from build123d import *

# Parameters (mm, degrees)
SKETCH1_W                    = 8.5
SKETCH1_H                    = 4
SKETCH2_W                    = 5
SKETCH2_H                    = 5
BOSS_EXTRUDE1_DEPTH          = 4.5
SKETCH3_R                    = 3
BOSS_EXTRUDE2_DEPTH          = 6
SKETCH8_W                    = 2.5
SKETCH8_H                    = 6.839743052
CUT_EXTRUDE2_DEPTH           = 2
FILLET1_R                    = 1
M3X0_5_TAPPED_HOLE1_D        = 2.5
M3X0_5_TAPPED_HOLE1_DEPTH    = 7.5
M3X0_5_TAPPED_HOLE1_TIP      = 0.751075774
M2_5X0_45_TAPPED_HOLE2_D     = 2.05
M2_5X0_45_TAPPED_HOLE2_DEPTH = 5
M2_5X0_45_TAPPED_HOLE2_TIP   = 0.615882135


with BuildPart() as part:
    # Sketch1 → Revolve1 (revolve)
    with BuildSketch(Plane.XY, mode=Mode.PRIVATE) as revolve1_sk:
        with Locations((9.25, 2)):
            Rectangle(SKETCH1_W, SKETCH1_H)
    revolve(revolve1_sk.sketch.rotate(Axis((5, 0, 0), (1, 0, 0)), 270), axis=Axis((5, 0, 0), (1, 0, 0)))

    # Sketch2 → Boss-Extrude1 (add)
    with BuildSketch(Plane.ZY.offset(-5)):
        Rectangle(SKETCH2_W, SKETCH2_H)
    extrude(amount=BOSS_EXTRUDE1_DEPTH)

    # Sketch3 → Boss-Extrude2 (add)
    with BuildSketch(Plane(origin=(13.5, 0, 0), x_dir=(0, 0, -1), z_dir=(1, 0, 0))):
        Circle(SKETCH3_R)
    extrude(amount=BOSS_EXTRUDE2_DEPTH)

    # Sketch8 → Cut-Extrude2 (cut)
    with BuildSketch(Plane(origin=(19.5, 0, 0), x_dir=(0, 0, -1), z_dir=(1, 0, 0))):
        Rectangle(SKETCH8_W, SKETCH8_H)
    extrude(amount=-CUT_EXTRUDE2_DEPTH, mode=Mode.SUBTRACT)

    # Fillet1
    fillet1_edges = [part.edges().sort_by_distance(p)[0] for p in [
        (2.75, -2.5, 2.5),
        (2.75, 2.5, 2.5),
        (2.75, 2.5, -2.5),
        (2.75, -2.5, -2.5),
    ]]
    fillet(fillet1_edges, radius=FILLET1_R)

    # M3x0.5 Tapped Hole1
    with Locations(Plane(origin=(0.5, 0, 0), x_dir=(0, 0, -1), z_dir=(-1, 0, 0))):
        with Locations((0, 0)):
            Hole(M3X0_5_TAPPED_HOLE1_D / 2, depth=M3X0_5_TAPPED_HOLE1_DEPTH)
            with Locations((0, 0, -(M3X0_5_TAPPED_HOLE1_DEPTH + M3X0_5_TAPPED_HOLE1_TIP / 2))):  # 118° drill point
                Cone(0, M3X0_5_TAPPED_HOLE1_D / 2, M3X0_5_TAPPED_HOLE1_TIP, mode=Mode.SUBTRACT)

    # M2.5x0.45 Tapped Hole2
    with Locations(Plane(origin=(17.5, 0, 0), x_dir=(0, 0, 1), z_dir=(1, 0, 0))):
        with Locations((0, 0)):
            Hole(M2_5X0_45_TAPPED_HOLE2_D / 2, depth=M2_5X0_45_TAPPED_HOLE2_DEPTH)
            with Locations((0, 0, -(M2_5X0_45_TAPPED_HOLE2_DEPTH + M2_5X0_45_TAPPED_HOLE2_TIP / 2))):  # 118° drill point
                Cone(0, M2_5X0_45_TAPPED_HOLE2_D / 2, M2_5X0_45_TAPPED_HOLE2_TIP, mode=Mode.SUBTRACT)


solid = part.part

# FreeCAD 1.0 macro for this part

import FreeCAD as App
import Part
import Sketcher


def edges_at(feature, points):
    """Names of the edges that pass closest to the given points."""
    edges = feature.Shape.Edges
    near = lambda p: min(range(len(edges)), key=lambda i: edges[i].distToShape(Part.Vertex(*p))[0])
    return sorted({f"Edge{near(p) + 1}" for p in points})


def add_polygon(sketch, points):
    """Adds a closed chain of lines whose ends are joined by coincident constraints."""
    first, n = sketch.GeometryCount, len(points)
    for a, b in zip(points, points[1:] + points[:1]):
        sketch.addGeometry(Part.LineSegment(App.Vector(*a, 0), App.Vector(*b, 0)), False)
    for i in range(n):
        sketch.addConstraint(Sketcher.Constraint("Coincident", first + i, 2, first + (i + 1) % n, 1))

doc = App.newDocument("Part")
body = doc.addObject("PartDesign::Body", "Body")

# Sketch on XY plane
sketch1 = body.newObject("Sketcher::SketchObject", "Sketch")
sketch1.AttachmentSupport = (doc.getObject("XY_Plane"), [""])
sketch1.MapMode = "FlatFace"
add_polygon(sketch1, [(5, 4), (5, 0), (13.5, 0), (13.5, 4)])  # lines 0-3
sketch1.addConstraint(Sketcher.Constraint("Vertical", 0))
sketch1.addConstraint(Sketcher.Constraint("Horizontal", 1))
sketch1.addConstraint(Sketcher.Constraint("Vertical", 2))
sketch1.addConstraint(Sketcher.Constraint("Horizontal", 3))
sketch1.addConstraint(Sketcher.Constraint("PointOnObject", 0, 2, -1))
sketch1.addConstraint(Sketcher.Constraint("DistanceY", 0, 2, 0, 1, 4.0))
sketch1.addConstraint(Sketcher.Constraint("DistanceX", 1, 1, 1, 2, 8.5))
sketch1.addConstraint(Sketcher.Constraint("DistanceX", -1, 1, 0, 2, 5.0))
revolution = body.newObject("PartDesign::Revolution", "Revolution")
revolution.Profile = sketch1
revolution.ReferenceAxis = (sketch1, ["H_Axis"])
revolution.Angle = 360

# Sketch on YZ plane
sketch2 = body.newObject("Sketcher::SketchObject", "Sketch001")
sketch2.AttachmentSupport = (doc.getObject("YZ_Plane"), [""])
sketch2.MapMode = "FlatFace"
sketch2.AttachmentOffset = App.Placement(App.Vector(0, 0, 5), App.Rotation())
add_polygon(sketch2, [(2, -2), (-2, -2), (-2, 2), (2, 2)])  # lines 0-3
sketch2.addConstraint(Sketcher.Constraint("Horizontal", 0))
sketch2.addConstraint(Sketcher.Constraint("Vertical", 1))
sketch2.addConstraint(Sketcher.Constraint("Horizontal", 2))
sketch2.addConstraint(Sketcher.Constraint("Vertical", 3))
sketch2.addConstraint(Sketcher.Constraint("Symmetric", 0, 2, 2, 2, -1, 1))
sketch2.addConstraint(Sketcher.Constraint("Equal", 2, 1))
sketch2.addConstraint(Sketcher.Constraint("DistanceX", 0, 2, 0, 1, 5.0))
pad1 = body.newObject("PartDesign::Pad", "Pad")
pad1.Profile = sketch2
pad1.Length = 4.5
pad1.Reversed = True

# Sketch on YZ plane
sketch3 = body.newObject("Sketcher::SketchObject", "Sketch002")
sketch3.AttachmentSupport = (doc.getObject("YZ_Plane"), [""])
sketch3.MapMode = "FlatFace"
sketch3.AttachmentOffset = App.Placement(App.Vector(0, 0, 13.5), App.Rotation())
sketch3.addGeometry(Part.Circle(App.Vector(0, 0, 0), App.Vector(0, 0, 1), 3), False)
sketch3.addConstraint(Sketcher.Constraint("Coincident", 0, 3, -1, 1))
sketch3.addConstraint(Sketcher.Constraint("Diameter", 0, 6.0))
pad2 = body.newObject("PartDesign::Pad", "Pad001")
pad2.Profile = sketch3
pad2.Length = 6

# Sketch on YZ plane
sketch4 = body.newObject("Sketcher::SketchObject", "Sketch003")
sketch4.AttachmentSupport = (doc.getObject("YZ_Plane"), [""])
sketch4.MapMode = "FlatFace"
sketch4.AttachmentOffset = App.Placement(App.Vector(0, 0, 19.5), App.Rotation())
add_polygon(sketch4, [(3.4, 1.2), (-3.4, 1.2), (-3.4, -1.2), (3.4, -1.2)])  # lines 0-3
sketch4.addConstraint(Sketcher.Constraint("Horizontal", 0))
sketch4.addConstraint(Sketcher.Constraint("Vertical", 1))
sketch4.addConstraint(Sketcher.Constraint("Horizontal", 2))
sketch4.addConstraint(Sketcher.Constraint("Vertical", 3))
sketch4.addConstraint(Sketcher.Constraint("Symmetric", 0, 2, 2, 2, -1, 1))
sketch4.addConstraint(Sketcher.Constraint("DistanceY", 1, 2, 1, 1, 2.5))
sketch4.addConstraint(Sketcher.Constraint("DistanceX", 0, 2, 0, 1, 6.839743))
pocket1 = body.newObject("PartDesign::Pocket", "Pocket")
pocket1.Profile = sketch4
pocket1.Length = 2
doc.recompute()

fillet = body.newObject("PartDesign::Fillet", "Fillet")
fillet.Base = (pocket1, edges_at(pocket1, [
    (2.75, -2.5, 2.5),
    (2.75, 2.5, 2.5),
    (2.75, 2.5, -2.5),
    (2.75, -2.5, -2.5),
]))
fillet.Radius = 1

# Sketch on YZ plane
sketch5 = body.newObject("Sketcher::SketchObject", "Sketch004")
sketch5.AttachmentSupport = (doc.getObject("YZ_Plane"), [""])
sketch5.MapMode = "FlatFace"
sketch5.AttachmentOffset = App.Placement(App.Vector(0, 0, 0.5), App.Rotation())
sketch5.addGeometry(Part.Circle(App.Vector(0, 0, 0), App.Vector(0, 0, 1), 1.2), False)
sketch5.addConstraint(Sketcher.Constraint("Coincident", 0, 3, -1, 1))
sketch5.addConstraint(Sketcher.Constraint("Diameter", 0, 2.5))
doc.recompute()
hole = body.newObject("PartDesign::Hole", "Hole")
hole.Profile = sketch5
hole.ThreadType = "None"
hole.Diameter = 2.5
hole.DepthType = "Dimension"
hole.Depth = 7.5
hole.DrillPoint = "Angled"
hole.DrillPointAngle = 118
hole.Reversed = True

# Sketch on YZ plane
sketch6 = body.newObject("Sketcher::SketchObject", "Sketch005")
sketch6.AttachmentSupport = (doc.getObject("YZ_Plane"), [""])
sketch6.MapMode = "FlatFace"
sketch6.AttachmentOffset = App.Placement(App.Vector(0, 0, 17.5), App.Rotation())
sketch6.addGeometry(Part.Circle(App.Vector(0, 0, 0), App.Vector(0, 0, 1), 1), False)
sketch6.addConstraint(Sketcher.Constraint("Coincident", 0, 3, -1, 1))
sketch6.addConstraint(Sketcher.Constraint("Diameter", 0, 2.05))
doc.recompute()
hole2 = body.newObject("PartDesign::Hole", "Hole001")
hole2.Profile = sketch6
hole2.ThreadType = "None"
hole2.Diameter = 2.05
hole2.DepthType = "Dimension"
hole2.Depth = 5
hole2.DrillPoint = "Angled"
hole2.DrillPointAngle = 118

doc.recompute()
